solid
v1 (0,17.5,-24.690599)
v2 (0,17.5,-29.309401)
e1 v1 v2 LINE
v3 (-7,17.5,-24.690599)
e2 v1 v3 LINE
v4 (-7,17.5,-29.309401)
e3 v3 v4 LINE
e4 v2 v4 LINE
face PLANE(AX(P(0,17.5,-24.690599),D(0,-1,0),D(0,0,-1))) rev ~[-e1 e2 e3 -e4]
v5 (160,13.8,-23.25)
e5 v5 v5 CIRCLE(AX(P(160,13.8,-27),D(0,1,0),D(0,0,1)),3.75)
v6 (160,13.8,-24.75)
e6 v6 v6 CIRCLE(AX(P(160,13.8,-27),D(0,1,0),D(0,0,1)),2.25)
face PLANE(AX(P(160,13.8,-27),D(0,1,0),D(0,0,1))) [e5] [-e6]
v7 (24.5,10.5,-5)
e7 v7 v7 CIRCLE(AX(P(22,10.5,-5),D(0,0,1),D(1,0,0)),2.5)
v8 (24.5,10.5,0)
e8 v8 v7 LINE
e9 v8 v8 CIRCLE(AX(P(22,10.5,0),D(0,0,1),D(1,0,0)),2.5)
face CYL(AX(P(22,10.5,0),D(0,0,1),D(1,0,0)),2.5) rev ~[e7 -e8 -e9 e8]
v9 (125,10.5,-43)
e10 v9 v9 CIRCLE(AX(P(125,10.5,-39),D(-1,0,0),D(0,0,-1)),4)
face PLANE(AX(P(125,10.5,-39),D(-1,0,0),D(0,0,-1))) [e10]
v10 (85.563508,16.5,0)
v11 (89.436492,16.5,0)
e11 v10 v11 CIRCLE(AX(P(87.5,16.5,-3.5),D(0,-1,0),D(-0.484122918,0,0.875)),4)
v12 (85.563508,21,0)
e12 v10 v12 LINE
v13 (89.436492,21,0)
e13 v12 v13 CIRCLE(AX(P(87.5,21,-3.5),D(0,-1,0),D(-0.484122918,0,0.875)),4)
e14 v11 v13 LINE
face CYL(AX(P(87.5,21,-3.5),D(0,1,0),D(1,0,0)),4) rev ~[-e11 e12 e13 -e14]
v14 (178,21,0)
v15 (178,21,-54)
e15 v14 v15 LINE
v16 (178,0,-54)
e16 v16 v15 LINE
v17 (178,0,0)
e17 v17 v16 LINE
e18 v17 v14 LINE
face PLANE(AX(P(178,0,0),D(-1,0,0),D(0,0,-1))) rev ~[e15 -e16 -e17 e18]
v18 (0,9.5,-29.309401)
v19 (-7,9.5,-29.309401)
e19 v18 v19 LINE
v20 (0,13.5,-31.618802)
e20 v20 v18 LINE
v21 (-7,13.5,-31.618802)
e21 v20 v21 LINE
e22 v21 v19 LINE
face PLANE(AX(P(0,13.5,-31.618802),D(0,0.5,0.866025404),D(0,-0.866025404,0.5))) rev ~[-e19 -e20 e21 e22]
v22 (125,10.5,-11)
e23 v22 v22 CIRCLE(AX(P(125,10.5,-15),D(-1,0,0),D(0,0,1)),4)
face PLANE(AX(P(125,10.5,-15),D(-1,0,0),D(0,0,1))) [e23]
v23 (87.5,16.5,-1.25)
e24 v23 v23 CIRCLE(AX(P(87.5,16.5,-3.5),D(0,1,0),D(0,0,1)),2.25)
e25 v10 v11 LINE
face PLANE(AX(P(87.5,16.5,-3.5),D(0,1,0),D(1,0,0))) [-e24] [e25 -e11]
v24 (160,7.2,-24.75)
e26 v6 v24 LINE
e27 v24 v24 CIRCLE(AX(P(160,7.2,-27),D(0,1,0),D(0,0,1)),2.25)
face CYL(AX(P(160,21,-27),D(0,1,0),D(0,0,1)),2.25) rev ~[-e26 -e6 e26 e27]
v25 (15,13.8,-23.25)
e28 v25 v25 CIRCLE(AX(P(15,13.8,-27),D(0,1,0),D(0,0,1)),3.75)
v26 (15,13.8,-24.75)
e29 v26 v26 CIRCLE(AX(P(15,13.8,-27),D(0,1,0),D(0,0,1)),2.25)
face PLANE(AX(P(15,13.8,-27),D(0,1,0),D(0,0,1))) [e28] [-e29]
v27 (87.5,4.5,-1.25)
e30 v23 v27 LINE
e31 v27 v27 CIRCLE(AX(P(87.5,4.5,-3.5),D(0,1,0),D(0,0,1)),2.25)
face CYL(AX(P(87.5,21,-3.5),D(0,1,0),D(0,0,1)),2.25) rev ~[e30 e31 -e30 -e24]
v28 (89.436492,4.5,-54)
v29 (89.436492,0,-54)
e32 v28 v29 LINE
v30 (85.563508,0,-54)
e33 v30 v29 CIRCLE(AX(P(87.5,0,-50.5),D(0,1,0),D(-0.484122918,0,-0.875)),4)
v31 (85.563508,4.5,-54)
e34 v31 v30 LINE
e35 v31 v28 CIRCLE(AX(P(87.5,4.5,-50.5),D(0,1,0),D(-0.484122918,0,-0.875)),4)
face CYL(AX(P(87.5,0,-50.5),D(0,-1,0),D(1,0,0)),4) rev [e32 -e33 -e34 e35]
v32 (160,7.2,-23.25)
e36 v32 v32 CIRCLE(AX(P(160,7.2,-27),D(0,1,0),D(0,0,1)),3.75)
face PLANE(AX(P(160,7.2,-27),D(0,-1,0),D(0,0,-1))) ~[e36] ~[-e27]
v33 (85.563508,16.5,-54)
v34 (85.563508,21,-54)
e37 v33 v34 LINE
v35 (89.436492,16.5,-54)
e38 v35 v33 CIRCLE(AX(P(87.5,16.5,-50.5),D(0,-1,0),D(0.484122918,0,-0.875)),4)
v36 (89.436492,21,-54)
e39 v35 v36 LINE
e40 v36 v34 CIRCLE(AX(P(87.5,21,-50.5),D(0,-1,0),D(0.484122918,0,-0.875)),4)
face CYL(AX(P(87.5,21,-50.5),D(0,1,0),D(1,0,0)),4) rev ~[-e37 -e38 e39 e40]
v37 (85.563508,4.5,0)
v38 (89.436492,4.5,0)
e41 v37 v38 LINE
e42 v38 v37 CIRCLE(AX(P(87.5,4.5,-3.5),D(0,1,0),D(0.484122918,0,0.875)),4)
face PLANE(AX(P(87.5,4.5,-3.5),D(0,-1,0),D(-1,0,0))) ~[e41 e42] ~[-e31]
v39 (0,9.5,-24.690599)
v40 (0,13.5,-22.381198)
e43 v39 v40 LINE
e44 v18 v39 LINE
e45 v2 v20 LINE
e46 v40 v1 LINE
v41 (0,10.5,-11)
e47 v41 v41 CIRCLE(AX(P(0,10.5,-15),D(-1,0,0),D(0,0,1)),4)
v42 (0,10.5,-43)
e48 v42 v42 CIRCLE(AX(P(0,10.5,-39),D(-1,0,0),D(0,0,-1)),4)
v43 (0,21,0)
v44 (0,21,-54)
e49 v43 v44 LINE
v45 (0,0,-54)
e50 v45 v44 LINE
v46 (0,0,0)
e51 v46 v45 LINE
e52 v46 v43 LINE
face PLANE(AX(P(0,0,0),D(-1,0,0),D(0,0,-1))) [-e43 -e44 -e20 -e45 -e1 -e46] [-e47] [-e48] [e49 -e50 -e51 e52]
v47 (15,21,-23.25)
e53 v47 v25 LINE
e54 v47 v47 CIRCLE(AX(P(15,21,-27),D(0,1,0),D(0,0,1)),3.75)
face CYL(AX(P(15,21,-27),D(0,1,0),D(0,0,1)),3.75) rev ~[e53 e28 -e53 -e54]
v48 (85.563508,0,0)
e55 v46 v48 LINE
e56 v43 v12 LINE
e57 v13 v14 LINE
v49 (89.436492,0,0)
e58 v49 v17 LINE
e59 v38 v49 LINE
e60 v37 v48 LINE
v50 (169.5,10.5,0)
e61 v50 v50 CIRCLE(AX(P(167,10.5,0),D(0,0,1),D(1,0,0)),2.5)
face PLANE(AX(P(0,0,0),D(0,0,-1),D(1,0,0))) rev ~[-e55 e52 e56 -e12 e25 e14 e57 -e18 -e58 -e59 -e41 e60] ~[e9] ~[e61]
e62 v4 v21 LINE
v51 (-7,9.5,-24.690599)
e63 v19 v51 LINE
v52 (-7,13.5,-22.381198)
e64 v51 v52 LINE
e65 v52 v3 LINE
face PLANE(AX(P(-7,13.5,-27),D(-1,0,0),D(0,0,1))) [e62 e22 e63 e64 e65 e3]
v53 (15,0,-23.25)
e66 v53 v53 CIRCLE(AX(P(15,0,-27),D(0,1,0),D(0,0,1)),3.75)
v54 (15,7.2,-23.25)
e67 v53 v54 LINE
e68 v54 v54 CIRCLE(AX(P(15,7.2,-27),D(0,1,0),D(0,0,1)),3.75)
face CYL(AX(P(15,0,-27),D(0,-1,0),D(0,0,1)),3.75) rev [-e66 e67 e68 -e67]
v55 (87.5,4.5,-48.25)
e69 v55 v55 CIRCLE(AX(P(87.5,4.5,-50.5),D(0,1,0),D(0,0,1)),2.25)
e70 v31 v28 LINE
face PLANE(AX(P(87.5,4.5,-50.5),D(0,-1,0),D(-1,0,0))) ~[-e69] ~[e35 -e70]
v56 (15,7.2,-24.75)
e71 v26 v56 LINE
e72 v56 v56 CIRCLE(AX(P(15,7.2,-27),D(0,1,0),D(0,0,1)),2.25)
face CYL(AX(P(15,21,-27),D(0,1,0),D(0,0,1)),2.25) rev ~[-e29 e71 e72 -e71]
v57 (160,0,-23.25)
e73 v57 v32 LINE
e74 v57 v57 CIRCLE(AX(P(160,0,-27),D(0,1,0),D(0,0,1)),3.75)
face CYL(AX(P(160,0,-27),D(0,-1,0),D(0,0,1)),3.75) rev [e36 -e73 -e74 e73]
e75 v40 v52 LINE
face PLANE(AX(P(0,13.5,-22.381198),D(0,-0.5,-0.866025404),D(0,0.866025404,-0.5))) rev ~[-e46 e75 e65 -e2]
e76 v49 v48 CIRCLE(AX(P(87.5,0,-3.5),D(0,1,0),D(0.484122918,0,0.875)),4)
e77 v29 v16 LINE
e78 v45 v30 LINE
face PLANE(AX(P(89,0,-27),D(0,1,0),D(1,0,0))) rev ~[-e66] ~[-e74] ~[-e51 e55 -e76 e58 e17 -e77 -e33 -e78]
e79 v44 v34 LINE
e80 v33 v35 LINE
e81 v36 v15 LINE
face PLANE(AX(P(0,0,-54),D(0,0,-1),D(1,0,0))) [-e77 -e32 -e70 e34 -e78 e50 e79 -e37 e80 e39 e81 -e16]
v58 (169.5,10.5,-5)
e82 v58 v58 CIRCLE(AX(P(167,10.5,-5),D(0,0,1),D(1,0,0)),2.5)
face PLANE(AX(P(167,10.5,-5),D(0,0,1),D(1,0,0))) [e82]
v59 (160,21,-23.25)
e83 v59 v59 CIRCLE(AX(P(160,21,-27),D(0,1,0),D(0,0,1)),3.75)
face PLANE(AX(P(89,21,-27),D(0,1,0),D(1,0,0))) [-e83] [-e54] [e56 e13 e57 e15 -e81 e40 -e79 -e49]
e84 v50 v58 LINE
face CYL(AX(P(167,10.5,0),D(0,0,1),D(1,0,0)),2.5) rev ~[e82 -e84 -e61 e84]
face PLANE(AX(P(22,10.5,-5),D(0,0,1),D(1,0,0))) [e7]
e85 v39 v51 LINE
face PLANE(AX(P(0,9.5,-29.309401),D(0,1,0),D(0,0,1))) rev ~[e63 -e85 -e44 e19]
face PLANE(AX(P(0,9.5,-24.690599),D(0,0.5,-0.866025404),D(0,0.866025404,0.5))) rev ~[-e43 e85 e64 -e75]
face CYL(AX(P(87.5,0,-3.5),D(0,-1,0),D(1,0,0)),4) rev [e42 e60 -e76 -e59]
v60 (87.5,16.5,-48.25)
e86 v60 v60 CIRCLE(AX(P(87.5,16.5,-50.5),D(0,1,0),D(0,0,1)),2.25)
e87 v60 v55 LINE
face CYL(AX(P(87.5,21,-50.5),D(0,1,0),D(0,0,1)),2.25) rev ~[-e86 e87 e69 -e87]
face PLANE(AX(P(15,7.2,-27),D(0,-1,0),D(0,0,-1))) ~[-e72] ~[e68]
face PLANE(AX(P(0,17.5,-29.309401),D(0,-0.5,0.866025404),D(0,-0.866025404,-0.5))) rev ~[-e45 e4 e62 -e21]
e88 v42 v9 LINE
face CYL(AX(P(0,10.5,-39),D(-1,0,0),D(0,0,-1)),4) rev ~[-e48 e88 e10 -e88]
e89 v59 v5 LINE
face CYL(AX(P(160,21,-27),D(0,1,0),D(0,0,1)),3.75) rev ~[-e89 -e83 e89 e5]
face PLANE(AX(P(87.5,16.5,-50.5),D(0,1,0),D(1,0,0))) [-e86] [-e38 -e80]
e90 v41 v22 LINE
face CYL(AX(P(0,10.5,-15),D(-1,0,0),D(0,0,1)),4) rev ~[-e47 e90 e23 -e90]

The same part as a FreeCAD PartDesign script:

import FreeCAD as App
import Part
import Sketcher
from FreeCAD import Vector
Q = App.Units.Quantity


def add_polygon(sketch, points):
    """Adds a closed chain of lines whose ends are joined by coincident constraints."""
    first, n = sketch.GeometryCount, len(points)
    for a, b in zip(points, points[1:] + points[:1]):
        sketch.addGeometry(Part.LineSegment(App.Vector(*a, 0), App.Vector(*b, 0)), False)
    for i in range(n):
        sketch.addConstraint(Sketcher.Constraint("Coincident", first + i, 2, first + (i + 1) % n, 1))

doc = App.newDocument("Part")
body = doc.addObject("PartDesign::Body", "Body")

sketch1 = body.newObject("Sketcher::SketchObject", "Sketch")
sketch1.AttachmentSupport = (doc.getObject("XZ_Plane"), [""])
sketch1.MapMode = "FlatFace"
add_polygon(sketch1, [(0, -54), (0, 0), (178, 0), (178, -54)])
sketch1.addConstraint([
    Sketcher.Constraint("Vertical", 0),
    Sketcher.Constraint("Horizontal", 1),
    Sketcher.Constraint("Vertical", 2),
    Sketcher.Constraint("Horizontal", 3),
    Sketcher.Constraint("Coincident", 0, 2, -1, 1),
    Sketcher.Constraint("DistanceX", 1, 1, 1, 2, 178.0),
    Sketcher.Constraint("DistanceY", 0, 1, 0, 2, 54.0),
])
pad1 = body.newObject("PartDesign::Pad", "Pad")
pad1.Profile = sketch1
pad1.Length = 21
pad1.Reversed = True

sketch2 = body.newObject("Sketcher::SketchObject", "Sketch001")
sketch2.AttachmentSupport = (doc.getObject("YZ_Plane"), [""])
sketch2.MapMode = "FlatFace"
sketch2.addGeometry([
    Part.Circle(Vector(10.5, -15, 0), Vector(0, 0, 1), 4),
    Part.Circle(Vector(10.5, -39, 0), Vector(0, 0, 1), 4),
], False)
sketch2.addConstraint([
    Sketcher.Constraint("Equal", 0, 1),
    Sketcher.Constraint("Vertical", 0, 3, 1, 3),
    Sketcher.Constraint("Diameter", 0, 8.0),
    Sketcher.Constraint("DistanceY", 0, 3, -1, 1, 15.0),
    Sketcher.Constraint("DistanceY", 1, 3, -1, 1, 39.0),
    Sketcher.Constraint("DistanceX", -1, 1, 0, 3, 10.5),
])
pocket1 = body.newObject("PartDesign::Pocket", "Pocket")
pocket1.Profile = sketch2
pocket1.Length = 125
pocket1.Reversed = True

sketch3 = body.newObject("Sketcher::SketchObject", "Sketch002")
sketch3.AttachmentSupport = (doc.getObject("XZ_Plane"), [""])
sketch3.MapMode = "FlatFace"
sketch3.AttachmentOffset = App.Placement(Vector(0, 0, -21), App.Rotation())
sketch3.addGeometry([
    Part.Circle(Vector(87.5, -3.5, 0), Vector(0, 0, 1), 2.2),
    Part.Circle(Vector(87.5, -50.5, 0), Vector(0, 0, 1), 2.2),
    Part.Circle(Vector(15, -27, 0), Vector(0, 0, 1), 2.2),
    Part.Circle(Vector(160, -27, 0), Vector(0, 0, 1), 2.2),
], False)
sketch3.addConstraint([
    Sketcher.Constraint("Equal", 0, 1),
    Sketcher.Constraint("Equal", 1, 2),
    Sketcher.Constraint("Equal", 2, 3),
    Sketcher.Constraint("Horizontal", 2, 3, 3, 3),
    Sketcher.Constraint("Vertical", 0, 3, 1, 3),
    Sketcher.Constraint("Diameter", 0, 4.5),
    Sketcher.Constraint("DistanceX", -1, 1, 2, 3, 15.0),
    Sketcher.Constraint("DistanceY", 2, 3, -1, 1, 27.0),
    Sketcher.Constraint("DistanceX", -1, 1, 3, 3, 160.0),
    Sketcher.Constraint("DistanceY", 1, 3, 0, 3, 47.0),
    Sketcher.Constraint("DistanceX", -1, 1, 0, 3, 87.5),
    Sketcher.Constraint("DistanceY", 0, 3, -1, 1, 3.5),
])
pocket2 = body.newObject("PartDesign::Pocket", "Pocket001")
pocket2.Profile = sketch3
pocket2.Type = "ThroughAll"
pocket2.Reversed = True

sketch4 = body.newObject("Sketcher::SketchObject", "Sketch003")
sketch4.AttachmentSupport = (doc.getObject("XZ_Plane"), [""])
sketch4.MapMode = "FlatFace"
sketch4.AttachmentOffset = App.Placement(Vector(0, 0, -21), App.Rotation())
sketch4.addGeometry([
    Part.Circle(Vector(87.5, -50.5, 0), Vector(0, 0, 1), 4),
    Part.Circle(Vector(87.5, -3.5, 0), Vector(0, 0, 1), 4),
], False)
sketch4.addConstraint([
    Sketcher.Constraint("Equal", 0, 1),
    Sketcher.Constraint("Vertical", 0, 3, 1, 3),
    Sketcher.Constraint("Diameter", 0, 8.0),
    Sketcher.Constraint("DistanceY", 0, 3, 1, 3, 47.0),
    Sketcher.Constraint("DistanceX", -1, 1, 0, 3, 87.5),
    Sketcher.Constraint("DistanceY", 0, 3, -1, 1, 50.5),
])
pocket3 = body.newObject("PartDesign::Pocket", "Pocket002")
pocket3.Profile = sketch4
pocket3.Length = 4.5
pocket3.Reversed = True

sketch5 = body.newObject("Sketcher::SketchObject", "Sketch004")
sketch5.AttachmentSupport = (doc.getObject("XZ_Plane"), [""])
sketch5.MapMode = "FlatFace"
sketch5.AttachmentOffset = App.Placement(Vector(0, 0, -21), App.Rotation())
sketch5.addGeometry([
    Part.Circle(Vector(160, -27, 0), Vector(0, 0, 1), 3.8),
    Part.Circle(Vector(15, -27, 0), Vector(0, 0, 1), 3.8),
], False)
sketch5.addConstraint([
    Sketcher.Constraint("Equal", 0, 1),
    Sketcher.Constraint("Horizontal", 0, 3, 1, 3),
    Sketcher.Constraint("Diameter", 0, 7.5),
    Sketcher.Constraint("DistanceX", -1, 1, 0, 3, 160.0),
    Sketcher.Constraint("DistanceY", 0, 3, -1, 1, 27.0),
    Sketcher.Constraint("DistanceX", -1, 1, 1, 3, 15.0),
])
pocket4 = body.newObject("PartDesign::Pocket", "Pocket003")
pocket4.Profile = sketch5
pocket4.Length = 7.2
pocket4.Reversed = True
doc.recompute()

datumplane = body.newObject("PartDesign::Plane", "DatumPlane")
datumplane.AttachmentSupport = (doc.getObject("XZ_Plane"), [""])
datumplane.MapMode = "FlatFace"
datumplane.AttachmentOffset = App.Placement(Vector(0, 0, -10.5), App.Rotation())
mirrored = body.newObject("PartDesign::Mirrored", "Mirrored")
mirrored.Originals = [pocket3, pocket4]
mirrored.MirrorPlane = (datumplane, [""])
body.Tip = mirrored

sketch6 = body.newObject("Sketcher::SketchObject", "Sketch005")
sketch6.AttachmentSupport = (doc.getObject("XY_Plane"), [""])
sketch6.MapMode = "FlatFace"
sketch6.addGeometry([
    Part.Circle(Vector(22, 10.5, 0), Vector(0, 0, 1), 2.5),
    Part.Circle(Vector(167, 10.5, 0), Vector(0, 0, 1), 2.5),
], False)
sketch6.addConstraint([
    Sketcher.Constraint("Equal", 0, 1),
    Sketcher.Constraint("Horizontal", 0, 3, 1, 3),
    Sketcher.Constraint("Diameter", 0, 5.0),
    Sketcher.Constraint("DistanceX", -1, 1, 0, 3, 22.0),
    Sketcher.Constraint("DistanceX", -1, 1, 1, 3, 167.0),
    Sketcher.Constraint("DistanceY", -1, 1, 0, 3, 10.5),
])
pocket5 = body.newObject("PartDesign::Pocket", "Pocket004")
pocket5.Profile = sketch6
pocket5.Length = 5

sketch7 = body.newObject("Sketcher::SketchObject", "Sketch006")
sketch7.AttachmentSupport = (doc.getObject("YZ_Plane"), [""])
sketch7.MapMode = "FlatFace"
add_polygon(sketch7, [(17.5, -24.7), (17.5, -29.3), (13.5, -31.6), (9.5, -29.3), (9.5, -24.7), (13.5, -22.4)])
sketch7.addConstraint([
    Sketcher.Constraint("Vertical", 0),
    Sketcher.Constraint("Vertical", 3),
    Sketcher.Constraint("Parallel", 1, 4),
    Sketcher.Constraint("Parallel", 2, 5),
    Sketcher.Constraint("Horizontal", 0, 2, 2, 2),
    Sketcher.Constraint("Horizontal", 3, 2, 5, 2),
    Sketcher.Constraint("Vertical", 1, 2, 4, 2),
    Sketcher.Constraint("Angle", 1, Q("-150 deg")),
    Sketcher.Constraint("DistanceX", 1, 2, 0, 2, 4.0),
    Sketcher.Constraint("DistanceX", -1, 1, 0, 2, 17.5),
    Sketcher.Constraint("DistanceY", 0, 2, -1, 1, 29.309401),
    Sketcher.Constraint("DistanceY", 3, 2, -1, 1, 24.690599),
])
pad2 = body.newObject("PartDesign::Pad", "Pad001")
pad2.Profile = sketch7
pad2.Length = 7
pad2.Reversed = True

doc.recompute()
